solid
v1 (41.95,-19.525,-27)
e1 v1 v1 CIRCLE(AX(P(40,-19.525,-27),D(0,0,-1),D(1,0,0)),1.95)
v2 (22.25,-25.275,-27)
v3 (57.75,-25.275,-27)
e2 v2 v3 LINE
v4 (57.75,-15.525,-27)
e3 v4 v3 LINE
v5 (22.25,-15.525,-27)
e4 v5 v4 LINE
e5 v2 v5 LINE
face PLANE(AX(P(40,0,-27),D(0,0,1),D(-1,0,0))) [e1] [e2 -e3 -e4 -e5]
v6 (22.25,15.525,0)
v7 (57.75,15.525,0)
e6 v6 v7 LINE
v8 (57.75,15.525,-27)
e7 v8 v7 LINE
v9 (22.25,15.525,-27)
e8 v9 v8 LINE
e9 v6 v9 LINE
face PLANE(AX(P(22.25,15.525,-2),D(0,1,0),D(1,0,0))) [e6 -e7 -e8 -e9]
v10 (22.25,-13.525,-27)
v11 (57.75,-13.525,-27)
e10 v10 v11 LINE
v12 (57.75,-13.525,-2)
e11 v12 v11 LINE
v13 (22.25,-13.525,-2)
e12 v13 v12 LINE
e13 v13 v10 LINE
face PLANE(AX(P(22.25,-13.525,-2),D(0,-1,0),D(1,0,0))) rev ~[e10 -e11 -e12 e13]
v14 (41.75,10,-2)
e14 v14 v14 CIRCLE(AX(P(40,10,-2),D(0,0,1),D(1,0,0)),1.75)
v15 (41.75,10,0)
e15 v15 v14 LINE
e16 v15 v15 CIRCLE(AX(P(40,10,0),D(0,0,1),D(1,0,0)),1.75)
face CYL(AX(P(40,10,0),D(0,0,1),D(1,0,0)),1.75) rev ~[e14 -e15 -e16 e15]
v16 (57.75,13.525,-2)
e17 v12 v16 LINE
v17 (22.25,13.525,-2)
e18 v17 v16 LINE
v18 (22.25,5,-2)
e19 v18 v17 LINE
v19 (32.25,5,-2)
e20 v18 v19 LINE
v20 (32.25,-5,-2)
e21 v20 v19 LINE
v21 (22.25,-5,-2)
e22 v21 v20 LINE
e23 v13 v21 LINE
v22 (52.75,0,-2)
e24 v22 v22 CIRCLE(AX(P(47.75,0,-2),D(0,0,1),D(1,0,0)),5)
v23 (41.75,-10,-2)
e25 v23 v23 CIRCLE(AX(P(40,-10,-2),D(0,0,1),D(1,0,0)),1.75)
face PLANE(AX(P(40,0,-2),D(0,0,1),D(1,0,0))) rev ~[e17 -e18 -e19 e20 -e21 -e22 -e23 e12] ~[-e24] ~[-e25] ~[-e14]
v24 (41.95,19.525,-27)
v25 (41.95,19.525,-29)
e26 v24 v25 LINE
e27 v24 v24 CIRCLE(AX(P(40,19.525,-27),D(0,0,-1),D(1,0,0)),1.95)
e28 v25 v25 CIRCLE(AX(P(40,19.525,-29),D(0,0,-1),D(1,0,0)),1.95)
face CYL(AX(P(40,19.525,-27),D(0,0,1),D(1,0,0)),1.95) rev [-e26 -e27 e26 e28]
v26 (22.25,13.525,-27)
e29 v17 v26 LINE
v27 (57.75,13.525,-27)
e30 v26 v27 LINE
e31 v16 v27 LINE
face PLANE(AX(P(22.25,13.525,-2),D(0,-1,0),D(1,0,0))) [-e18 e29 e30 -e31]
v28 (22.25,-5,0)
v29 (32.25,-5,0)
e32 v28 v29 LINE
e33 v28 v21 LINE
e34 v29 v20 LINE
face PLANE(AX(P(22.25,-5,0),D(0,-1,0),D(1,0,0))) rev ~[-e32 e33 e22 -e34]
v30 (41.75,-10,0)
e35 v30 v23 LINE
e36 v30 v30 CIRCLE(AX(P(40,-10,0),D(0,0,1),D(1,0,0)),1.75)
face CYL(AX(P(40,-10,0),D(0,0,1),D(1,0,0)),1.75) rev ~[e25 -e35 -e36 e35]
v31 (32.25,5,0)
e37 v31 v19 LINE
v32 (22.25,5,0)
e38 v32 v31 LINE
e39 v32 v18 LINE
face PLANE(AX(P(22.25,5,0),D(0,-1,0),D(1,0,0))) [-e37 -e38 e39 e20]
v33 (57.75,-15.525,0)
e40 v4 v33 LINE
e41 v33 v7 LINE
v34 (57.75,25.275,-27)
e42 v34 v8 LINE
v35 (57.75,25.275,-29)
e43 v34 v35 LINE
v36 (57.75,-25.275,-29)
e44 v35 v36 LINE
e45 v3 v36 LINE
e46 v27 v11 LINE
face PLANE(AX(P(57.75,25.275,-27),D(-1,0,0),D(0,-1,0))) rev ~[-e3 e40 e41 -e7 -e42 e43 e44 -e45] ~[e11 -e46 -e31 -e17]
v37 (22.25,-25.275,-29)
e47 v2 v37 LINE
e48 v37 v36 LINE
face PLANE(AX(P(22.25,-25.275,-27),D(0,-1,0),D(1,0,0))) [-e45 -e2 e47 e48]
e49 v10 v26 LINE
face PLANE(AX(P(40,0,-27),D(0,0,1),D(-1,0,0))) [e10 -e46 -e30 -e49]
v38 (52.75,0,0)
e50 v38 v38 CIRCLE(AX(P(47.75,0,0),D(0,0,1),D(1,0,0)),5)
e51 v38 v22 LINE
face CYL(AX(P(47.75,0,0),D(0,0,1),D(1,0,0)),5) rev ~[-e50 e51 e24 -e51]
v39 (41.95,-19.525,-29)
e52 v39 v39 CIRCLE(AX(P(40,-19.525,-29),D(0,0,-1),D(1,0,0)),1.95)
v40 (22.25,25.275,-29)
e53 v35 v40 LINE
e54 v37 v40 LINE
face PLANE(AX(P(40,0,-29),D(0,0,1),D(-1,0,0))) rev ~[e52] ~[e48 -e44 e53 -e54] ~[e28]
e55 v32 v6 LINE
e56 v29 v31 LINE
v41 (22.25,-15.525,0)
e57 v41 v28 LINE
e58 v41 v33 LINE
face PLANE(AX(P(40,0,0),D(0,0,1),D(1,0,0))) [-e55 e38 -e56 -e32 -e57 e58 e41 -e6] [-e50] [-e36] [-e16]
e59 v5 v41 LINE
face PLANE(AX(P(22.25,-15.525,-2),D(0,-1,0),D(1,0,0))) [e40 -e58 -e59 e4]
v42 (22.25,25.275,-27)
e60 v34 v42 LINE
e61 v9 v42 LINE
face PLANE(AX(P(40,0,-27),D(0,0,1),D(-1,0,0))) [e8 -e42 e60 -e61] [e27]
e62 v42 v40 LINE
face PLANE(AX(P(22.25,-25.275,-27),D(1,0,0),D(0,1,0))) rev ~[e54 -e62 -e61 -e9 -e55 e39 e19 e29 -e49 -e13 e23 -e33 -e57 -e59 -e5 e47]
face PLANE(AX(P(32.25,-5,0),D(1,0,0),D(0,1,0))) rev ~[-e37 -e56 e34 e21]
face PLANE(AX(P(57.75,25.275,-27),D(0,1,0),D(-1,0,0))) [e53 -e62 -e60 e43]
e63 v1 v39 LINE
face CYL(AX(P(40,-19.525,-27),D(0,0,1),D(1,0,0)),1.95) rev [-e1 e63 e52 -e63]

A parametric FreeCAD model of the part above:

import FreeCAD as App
import Part
import Sketcher
Q = App.Units.Quantity


def add_polygon(sketch, points):
    """Adds a closed chain of lines whose ends are joined by coincident constraints."""
    first, n = sketch.GeometryCount, len(points)
    for a, b in zip(points, points[1:] + points[:1]):
        sketch.addGeometry(Part.LineSegment(App.Vector(*a, 0), App.Vector(*b, 0)), False)
    for i in range(n):
        sketch.addConstraint(Sketcher.Constraint("Coincident", first + i, 2, first + (i + 1) % n, 1))

doc = App.newDocument("Part")
body = doc.addObject("PartDesign::Body", "Body")

sketch1 = doc.addObject("Sketcher::SketchObject", "Sketch")
body.addObject(sketch1)
sketch1.AttachmentSupport = (doc.XY_Plane, [""])
sketch1.MapMode = "FlatFace"
add_polygon(sketch1, [(-18, 16), (-18, -16), (18, -16), (18, 16)])
sketch1.addConstraint([
    Sketcher.Constraint("Vertical", 0),
    Sketcher.Constraint("Horizontal", 1),
    Sketcher.Constraint("Vertical", 2),
    Sketcher.Constraint("Horizontal", 3),
    Sketcher.Constraint("Symmetric", 0, 2, 2, 2, -1, 1),
    Sketcher.Constraint("DistanceX", 1, 1, 1, 2, Q("35.5 mm")),
    Sketcher.Constraint("DistanceY", 0, 2, 0, 1, Q("31.05 mm")),
])
pad1 = doc.addObject("PartDesign::Pad", "Pad")
body.addObject(pad1)
pad1.Profile = sketch1
pad1.Length = 2

sketch2 = doc.addObject("Sketcher::SketchObject", "Sketch001")
body.addObject(sketch2)
sketch2.AttachmentSupport = (doc.XY_Plane, [""])
sketch2.MapMode = "FlatFace"
add_polygon(sketch2, [(-17.8, -15.5), (-17.8, -13.5), (17.8, -13.5), (17.8, -15.5)])
add_polygon(sketch2, [(-17.8, 13.5), (-17.8, 15.5), (17.8, 15.5), (17.8, 13.5)])
sketch2.addConstraint([
    Sketcher.Constraint("Vertical", 0),
    Sketcher.Constraint("Horizontal", 1),
    Sketcher.Constraint("Vertical", 2),
    Sketcher.Constraint("Horizontal", 3),
    Sketcher.Constraint("Vertical", 4),
    Sketcher.Constraint("Horizontal", 5),
    Sketcher.Constraint("Vertical", 6),
    Sketcher.Constraint("Horizontal", 7),
    Sketcher.Constraint("Symmetric", 2, 2, 4, 2, -1, 1),
    Sketcher.Constraint("Symmetric", 0, 2, 6, 2, -1, 1),
    Sketcher.Constraint("Vertical", 3, 2, 4, 2),
    Sketcher.Constraint("DistanceY", 0, 1, 0, 2, Q("2 mm")),
    Sketcher.Constraint("DistanceX", 1, 1, 1, 2, Q("35.5 mm")),
    Sketcher.Constraint("DistanceY", 0, 2, 4, 2, Q("29.05 mm")),
])
pad2 = doc.addObject("PartDesign::Pad", "Pad001")
body.addObject(pad2)
pad2.Profile = sketch2
pad2.Length = 25
pad2.Reversed = True

sketch3 = doc.addObject("Sketcher::SketchObject", "Sketch002")
body.addObject(sketch3)
sketch3.AttachmentSupport = (doc.XY_Plane, [""])
sketch3.MapMode = "FlatFace"
sketch3.AttachmentOffset = App.Placement(App.Vector(0, 0, -25), App.Rotation())
add_polygon(sketch3, [(17.8, -25.3), (-17.8, -25.3), (-17.8, 25.3), (17.8, 25.3)])
sketch3.addGeometry(Part.Circle(App.Vector(0, 19.5, 0), App.Vector(0, 0, 1), 1.9), False)
sketch3.addGeometry(Part.Circle(App.Vector(0, -19.5, 0), App.Vector(0, 0, 1), 1.9), False)
sketch3.addConstraint([
    Sketcher.Constraint("Horizontal", 0),
    Sketcher.Constraint("Vertical", 1),
    Sketcher.Constraint("Horizontal", 2),
    Sketcher.Constraint("Vertical", 3),
    Sketcher.Constraint("Equal", 4, 5),
    Sketcher.Constraint("Symmetric", 4, 3, 5, 3, -1, 1),
    Sketcher.Constraint("Symmetric", 0, 2, 2, 2, -1, 1),
    Sketcher.Constraint("PointOnObject", 4, 3, -2),
    Sketcher.Constraint("Diameter", 4, Q("3.9 mm")),
    Sketcher.Constraint("DistanceX", 0, 2, 0, 1, Q("35.5 mm")),
    Sketcher.Constraint("DistanceY", 1, 1, 1, 2, Q("50.55 mm")),
    Sketcher.Constraint("DistanceY", 0, 2, 4, 3, Q("44.8 mm")),
])
pad3 = doc.addObject("PartDesign::Pad", "Pad002")
body.addObject(pad3)
pad3.Profile = sketch3
pad3.Length = 2
pad3.Reversed = True

sketch4 = doc.addObject("Sketcher::SketchObject", "Sketch003")
body.addObject(sketch4)
sketch4.AttachmentSupport = (doc.XY_Plane, [""])
sketch4.MapMode = "FlatFace"
sketch4.AttachmentOffset = App.Placement(App.Vector(0, 0, 2), App.Rotation())
sketch4.addGeometry(Part.Circle(App.Vector(0, 10, 0), App.Vector(0, 0, 1), 1.8), False)
sketch4.addGeometry(Part.Circle(App.Vector(0, -10, 0), App.Vector(0, 0, 1), 1.8), False)
sketch4.addGeometry(Part.Circle(App.Vector(7.8, 0, 0), App.Vector(0, 0, 1), 5), False)
add_polygon(sketch4, [(-17.8, 5), (-17.8, -5), (-7.8, -5), (-7.8, 5)])
sketch4.addConstraint([
    Sketcher.Constraint("Vertical", 3),
    Sketcher.Constraint("Horizontal", 4),
    Sketcher.Constraint("Vertical", 5),
    Sketcher.Constraint("Horizontal", 6),
    Sketcher.Constraint("Equal", 0, 1),
    Sketcher.Constraint("Symmetric", 0, 3, 1, 3, -1, 1),
    Sketcher.Constraint("PointOnObject", 0, 3, -2),
    Sketcher.Constraint("PointOnObject", 2, 3, -1),
    Sketcher.Constraint("Equal", 6, 3),
    Sketcher.Constraint("Diameter", 2, Q("10 mm")),
    Sketcher.Constraint("Diameter", 0, Q("3.5 mm")),
    Sketcher.Constraint("DistanceX", 4, 1, 4, 2, Q("10 mm")),
    Sketcher.Constraint("DistanceY", -1, 1, 0, 3, Q("10 mm")),
    Sketcher.Constraint("DistanceY", 3, 2, -1, 1, Q("5 mm")),
    Sketcher.Constraint("DistanceX", 3, 2, 2, 3, Q("25.5 mm")),
    Sketcher.Constraint("DistanceX", -1, 1, 2, 3, Q("7.75 mm")),
])
pocket1 = doc.addObject("PartDesign::Pocket", "Pocket")
body.addObject(pocket1)
pocket1.Profile = sketch4
pocket1.Length = 2
body2 = doc.addObject("PartDesign::Body", "Body001")
doc.recompute()

body.Placement = App.Placement(App.Vector(40, 0, -2), App.Rotation(App.Vector(0, 0, 1), 0))
boolean = doc.addObject("PartDesign::Boolean", "Boolean")
body2.addObject(boolean)
boolean.Type = "Fuse"
boolean.addObjects([body])

doc.recompute()
